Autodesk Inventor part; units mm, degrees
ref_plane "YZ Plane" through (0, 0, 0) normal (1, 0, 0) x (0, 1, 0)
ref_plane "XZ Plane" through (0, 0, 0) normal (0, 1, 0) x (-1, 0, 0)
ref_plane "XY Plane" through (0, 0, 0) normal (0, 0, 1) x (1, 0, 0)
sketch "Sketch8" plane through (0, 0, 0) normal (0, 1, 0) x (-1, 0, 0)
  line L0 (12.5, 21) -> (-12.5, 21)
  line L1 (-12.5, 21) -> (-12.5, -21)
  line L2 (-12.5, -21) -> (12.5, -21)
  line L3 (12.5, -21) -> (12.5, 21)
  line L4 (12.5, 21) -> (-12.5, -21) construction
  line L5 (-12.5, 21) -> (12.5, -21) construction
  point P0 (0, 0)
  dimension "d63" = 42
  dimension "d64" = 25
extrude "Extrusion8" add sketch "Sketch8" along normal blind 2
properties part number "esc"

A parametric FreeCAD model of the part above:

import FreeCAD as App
import Part
import Sketcher
from FreeCAD import Vector

doc = App.newDocument("Part")
body = doc.addObject("PartDesign::Body", "Body")

# Sketch on XZ plane
sketch1 = doc.addObject("Sketcher::SketchObject", "Sketch")
body.addObject(sketch1)
sketch1.AttachmentSupport = (doc.XZ_Plane, [""])
sketch1.MapMode = "FlatFace"
sketch1.addGeometry([
    Part.LineSegment(Vector(-12.5, -21, 0), Vector(-12.5, 21, 0)),
    Part.LineSegment(Vector(-12.5, 21, 0), Vector(12.5, 21, 0)),
    Part.LineSegment(Vector(12.5, 21, 0), Vector(12.5, -21, 0)),
    Part.LineSegment(Vector(12.5, -21, 0), Vector(-12.5, -21, 0)),
], False)
sketch1.addConstraint([
    Sketcher.Constraint("Coincident", 0, 2, 1, 1),
    Sketcher.Constraint("Coincident", 1, 2, 2, 1),
    Sketcher.Constraint("Coincident", 2, 2, 3, 1),
    Sketcher.Constraint("Coincident", 3, 2, 0, 1),
    Sketcher.Constraint("Vertical", 0),
    Sketcher.Constraint("Horizontal", 1),
    Sketcher.Constraint("Vertical", 2),
    Sketcher.Constraint("Horizontal", 3),
    Sketcher.Constraint("Symmetric", 0, 2, 2, 2, -1, 1),
    Sketcher.Constraint("DistanceX", 1, 1, 1, 2, 25.0),
    Sketcher.Constraint("DistanceY", 0, 1, 0, 2, 42.0),
])
pad1 = doc.addObject("PartDesign::Pad", "Pad")
body.addObject(pad1)
pad1.Profile = sketch1
pad1.Length = 2
pad1.Reversed = True

doc.recompute()
